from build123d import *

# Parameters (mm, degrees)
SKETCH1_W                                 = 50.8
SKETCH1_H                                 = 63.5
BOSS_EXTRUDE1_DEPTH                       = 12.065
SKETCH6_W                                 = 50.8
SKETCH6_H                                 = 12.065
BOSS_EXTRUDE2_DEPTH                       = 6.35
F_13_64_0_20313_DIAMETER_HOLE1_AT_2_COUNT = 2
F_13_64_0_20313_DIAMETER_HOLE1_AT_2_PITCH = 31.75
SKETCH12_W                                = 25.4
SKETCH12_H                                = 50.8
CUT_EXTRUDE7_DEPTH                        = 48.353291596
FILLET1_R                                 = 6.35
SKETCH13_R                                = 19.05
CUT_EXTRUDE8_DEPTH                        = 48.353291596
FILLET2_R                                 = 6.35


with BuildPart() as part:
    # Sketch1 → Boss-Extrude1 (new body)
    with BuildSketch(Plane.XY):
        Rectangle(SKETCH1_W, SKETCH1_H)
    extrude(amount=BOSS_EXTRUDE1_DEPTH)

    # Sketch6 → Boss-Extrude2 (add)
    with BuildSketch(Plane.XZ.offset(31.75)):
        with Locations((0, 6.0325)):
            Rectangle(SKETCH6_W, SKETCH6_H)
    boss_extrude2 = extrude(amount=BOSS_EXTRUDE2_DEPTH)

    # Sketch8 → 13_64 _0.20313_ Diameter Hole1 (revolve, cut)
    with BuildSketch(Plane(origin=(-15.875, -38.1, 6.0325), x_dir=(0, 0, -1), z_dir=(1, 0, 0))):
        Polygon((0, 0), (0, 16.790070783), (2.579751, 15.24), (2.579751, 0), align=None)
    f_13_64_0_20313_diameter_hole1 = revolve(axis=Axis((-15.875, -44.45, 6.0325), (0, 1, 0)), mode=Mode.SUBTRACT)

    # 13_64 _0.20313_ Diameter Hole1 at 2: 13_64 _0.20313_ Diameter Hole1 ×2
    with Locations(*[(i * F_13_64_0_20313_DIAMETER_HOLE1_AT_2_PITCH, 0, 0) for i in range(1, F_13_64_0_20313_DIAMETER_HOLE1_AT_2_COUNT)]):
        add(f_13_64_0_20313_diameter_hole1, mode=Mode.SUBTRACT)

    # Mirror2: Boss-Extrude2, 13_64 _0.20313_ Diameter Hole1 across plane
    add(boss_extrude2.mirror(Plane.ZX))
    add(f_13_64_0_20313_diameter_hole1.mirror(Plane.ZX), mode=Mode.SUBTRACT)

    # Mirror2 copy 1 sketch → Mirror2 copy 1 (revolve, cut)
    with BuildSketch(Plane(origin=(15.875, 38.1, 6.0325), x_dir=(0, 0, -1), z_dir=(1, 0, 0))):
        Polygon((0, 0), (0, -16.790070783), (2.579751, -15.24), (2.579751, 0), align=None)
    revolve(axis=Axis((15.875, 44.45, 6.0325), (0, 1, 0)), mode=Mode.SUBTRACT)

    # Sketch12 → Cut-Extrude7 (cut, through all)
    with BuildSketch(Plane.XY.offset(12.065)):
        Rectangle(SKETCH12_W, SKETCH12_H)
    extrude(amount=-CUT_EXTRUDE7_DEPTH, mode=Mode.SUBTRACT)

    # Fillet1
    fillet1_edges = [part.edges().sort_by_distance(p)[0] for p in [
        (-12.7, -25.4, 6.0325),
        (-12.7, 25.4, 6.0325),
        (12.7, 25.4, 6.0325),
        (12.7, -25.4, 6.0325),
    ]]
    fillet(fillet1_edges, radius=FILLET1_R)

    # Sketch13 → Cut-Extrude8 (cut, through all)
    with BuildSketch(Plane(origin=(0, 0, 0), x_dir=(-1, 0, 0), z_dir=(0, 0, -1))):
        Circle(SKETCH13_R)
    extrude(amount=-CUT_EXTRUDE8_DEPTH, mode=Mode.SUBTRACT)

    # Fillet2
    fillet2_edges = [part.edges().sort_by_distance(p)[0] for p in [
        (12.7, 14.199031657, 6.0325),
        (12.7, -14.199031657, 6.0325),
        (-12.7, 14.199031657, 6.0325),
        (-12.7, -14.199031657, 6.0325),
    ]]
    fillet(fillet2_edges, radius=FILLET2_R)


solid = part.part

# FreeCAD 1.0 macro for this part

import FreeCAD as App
import Part
import Sketcher

V = App.Vector
Q = App.Units.Quantity


def edges_at(feature, points):
    """Names of the edges that pass closest to the given points."""
    edges = feature.Shape.Edges
    near = lambda p: min(range(len(edges)), key=lambda i: edges[i].distToShape(Part.Vertex(*p))[0])
    return sorted({f"Edge{near(p) + 1}" for p in points})


def add_polygon(sketch, points):
    """Adds a closed chain of lines whose ends are joined by coincident constraints."""
    first, n = sketch.GeometryCount, len(points)
    for a, b in zip(points, points[1:] + points[:1]):
        sketch.addGeometry(Part.LineSegment(App.Vector(*a, 0), App.Vector(*b, 0)), False)
    for i in range(n):
        sketch.addConstraint(Sketcher.Constraint("Coincident", first + i, 2, first + (i + 1) % n, 1))

doc = App.newDocument("Part")
body = doc.addObject("PartDesign::Body", "Body")

# Sketch on XY plane
sketch1 = body.newObject("Sketcher::SketchObject", "Sketch")
sketch1.AttachmentSupport = (doc.getObject("XY_Plane"), [""])
sketch1.MapMode = "FlatFace"
add_polygon(sketch1, [(-25, 32), (-25, -32), (25, -32), (25, 32)])  # lines 0-3
sketch1.addConstraint(Sketcher.Constraint("Vertical", 0))
sketch1.addConstraint(Sketcher.Constraint("Horizontal", 1))
sketch1.addConstraint(Sketcher.Constraint("Vertical", 2))
sketch1.addConstraint(Sketcher.Constraint("Horizontal", 3))
sketch1.addConstraint(Sketcher.Constraint("Symmetric", 0, 2, 2, 2, -1, 1))
sketch1.addConstraint(Sketcher.Constraint("DistanceX", 1, 1, 1, 2, Q("2 in")))
sketch1.addConstraint(Sketcher.Constraint("DistanceY", 0, 2, 0, 1, Q("2.5 in")))
pad1 = body.newObject("PartDesign::Pad", "Pad")
pad1.Profile = sketch1
pad1.Length = Q("0.475 in")

# Sketch on XZ plane
sketch2 = body.newObject("Sketcher::SketchObject", "Sketch001")
sketch2.AttachmentSupport = (doc.getObject("XZ_Plane"), [""])
sketch2.MapMode = "FlatFace"
sketch2.AttachmentOffset = App.Placement(V(0, 0, 1.25 * 25.4), App.Rotation())
add_polygon(sketch2, [(-25, 12), (-25, 0), (25, 0), (25, 12)])  # lines 0-3
sketch2.addConstraint(Sketcher.Constraint("Vertical", 0))
sketch2.addConstraint(Sketcher.Constraint("Horizontal", 1))
sketch2.addConstraint(Sketcher.Constraint("Vertical", 2))
sketch2.addConstraint(Sketcher.Constraint("Horizontal", 3))
sketch2.addConstraint(Sketcher.Constraint("Symmetric", 0, 2, 1, 2, -1, 1))
sketch2.addConstraint(Sketcher.Constraint("DistanceX", 1, 1, 1, 2, Q("2 in")))
sketch2.addConstraint(Sketcher.Constraint("DistanceY", 0, 2, 0, 1, Q("0.475 in")))
pad2 = body.newObject("PartDesign::Pad", "Pad001")
pad2.Profile = sketch2
pad2.Length = Q("0.25 in")

# Sketch on YZ plane
sketch3 = body.newObject("Sketcher::SketchObject", "Sketch002")
sketch3.AttachmentSupport = (doc.getObject("YZ_Plane"), [""])
sketch3.MapMode = "FlatFace"
sketch3.AttachmentOffset = App.Placement(V(0, 0, -0.625 * 25.4), App.Rotation())
add_polygon(sketch3, [(-21.3, 6), (-38.1, 6), (-38.1, 3.5), (-22.9, 3.5)])  # lines 0-3
sketch3.addGeometry(Part.LineSegment(V(-38.1, 6, 0), V(-21.3, 6, 0)), True)  # axis
sketch3.addConstraint(Sketcher.Constraint("Horizontal", 0))
sketch3.addConstraint(Sketcher.Constraint("Vertical", 1))
sketch3.addConstraint(Sketcher.Constraint("Horizontal", 2))
sketch3.addConstraint(Sketcher.Constraint("Horizontal", 4))
sketch3.addConstraint(Sketcher.Constraint("Coincident", 4, 1, 0, 2))
sketch3.addConstraint(Sketcher.Constraint("Equal", 0, 4))
sketch3.addConstraint(Sketcher.Constraint("DistanceX", 2, 1, 2, 2, Q("0.6 in")))
sketch3.addConstraint(Sketcher.Constraint("Angle", 3, Q("59 deg")))
sketch3.addConstraint(Sketcher.Constraint("DistanceX", 0, 2, -1, 1, Q("1.5 in")))
sketch3.addConstraint(Sketcher.Constraint("DistanceY", -1, 1, 0, 2, Q("0.2375 in")))
sketch3.addConstraint(Sketcher.Constraint("DistanceX", 0, 2, 0, 1, 16.790071))
groove = body.newObject("PartDesign::Groove", "Groove")
groove.Profile = sketch3
groove.ReferenceAxis = (sketch3, ["Axis0"])
groove.Angle = 360
doc.recompute()

linearpattern = body.newObject("PartDesign::LinearPattern", "LinearPattern")
linearpattern.Originals = [groove]
linearpattern.Direction = (doc.getObject("X_Axis"), [""])
linearpattern.Mode = "offset"
linearpattern.Offset = Q("1.25 in")
linearpattern.Occurrences = 2
body.Tip = linearpattern
doc.recompute()

mirrored = body.newObject("PartDesign::Mirrored", "Mirrored")
mirrored.Originals = [pad2, groove]
mirrored.MirrorPlane = (doc.getObject("XZ_Plane"), [""])
body.Tip = mirrored

# Sketch on YZ plane
sketch4 = body.newObject("Sketcher::SketchObject", "Sketch003")
sketch4.AttachmentSupport = (doc.getObject("YZ_Plane"), [""])
sketch4.MapMode = "FlatFace"
sketch4.AttachmentOffset = App.Placement(V(0, 0, 0.625 * 25.4), App.Rotation())
add_polygon(sketch4, [(38.1, 6), (21.3, 6), (22.9, 3.5), (38.1, 3.5)])  # lines 0-3
sketch4.addGeometry(Part.LineSegment(V(21.3, 6, 0), V(38.1, 6, 0)), True)  # axis
sketch4.addConstraint(Sketcher.Constraint("Horizontal", 0))
sketch4.addConstraint(Sketcher.Constraint("Horizontal", 2))
sketch4.addConstraint(Sketcher.Constraint("Vertical", 3))
sketch4.addConstraint(Sketcher.Constraint("Horizontal", 4))
sketch4.addConstraint(Sketcher.Constraint("Coincident", 4, 1, 0, 2))
sketch4.addConstraint(Sketcher.Constraint("Vertical", 2, 2, 4, 2))
sketch4.addConstraint(Sketcher.Constraint("DistanceX", 2, 1, 2, 2, Q("0.6 in")))
sketch4.addConstraint(Sketcher.Constraint("Angle", 1, Q("-59 deg")))
sketch4.addConstraint(Sketcher.Constraint("DistanceX", -1, 1, 1, 2, Q("0.9 in")))
sketch4.addConstraint(Sketcher.Constraint("DistanceY", -1, 1, 0, 2, Q("0.2375 in")))
sketch4.addConstraint(Sketcher.Constraint("DistanceX", 0, 2, 0, 1, 16.790071))
groove2 = body.newObject("PartDesign::Groove", "Groove001")
groove2.Profile = sketch4
groove2.ReferenceAxis = (sketch4, ["Axis0"])
groove2.Angle = 360

# Sketch on XY plane
sketch5 = body.newObject("Sketcher::SketchObject", "Sketch004")
sketch5.AttachmentSupport = (doc.getObject("XY_Plane"), [""])
sketch5.MapMode = "FlatFace"
sketch5.AttachmentOffset = App.Placement(V(0, 0, 0.475 * 25.4), App.Rotation())
add_polygon(sketch5, [(-13, 25), (-13, -25), (13, -25), (13, 25)])  # lines 0-3
sketch5.addConstraint(Sketcher.Constraint("Vertical", 0))
sketch5.addConstraint(Sketcher.Constraint("Horizontal", 1))
sketch5.addConstraint(Sketcher.Constraint("Vertical", 2))
sketch5.addConstraint(Sketcher.Constraint("Horizontal", 3))
sketch5.addConstraint(Sketcher.Constraint("Symmetric", 0, 2, 2, 2, -1, 1))
sketch5.addConstraint(Sketcher.Constraint("DistanceX", 1, 1, 1, 2, Q("1 in")))
sketch5.addConstraint(Sketcher.Constraint("DistanceY", 0, 2, 0, 1, Q("2 in")))
pocket1 = body.newObject("PartDesign::Pocket", "Pocket")
pocket1.Profile = sketch5
pocket1.Type = "ThroughAll"
doc.recompute()

fillet = body.newObject("PartDesign::Fillet", "Fillet")
fillet.Base = (pocket1, edges_at(pocket1, [
    (-12.7, -25.4, 6.032),
    (-12.7, 25.4, 6.032),
    (12.7, 25.4, 6.032),
    (12.7, -25.4, 6.032),
]))
fillet.Radius = Q("0.25 in")

# Sketch on XY plane
sketch6 = body.newObject("Sketcher::SketchObject", "Sketch005")
sketch6.AttachmentSupport = (doc.getObject("XY_Plane"), [""])
sketch6.MapMode = "FlatFace"
sketch6.addGeometry(Part.Circle(V(0, 0, 0), V(0, 0, 1), 19), False)
sketch6.addConstraint(Sketcher.Constraint("Coincident", 0, 3, -1, 1))
sketch6.addConstraint(Sketcher.Constraint("Diameter", 0, Q("1.5 in")))
pocket2 = body.newObject("PartDesign::Pocket", "Pocket001")
pocket2.Profile = sketch6
pocket2.Type = "ThroughAll"
pocket2.Reversed = True
doc.recompute()

fillet2 = body.newObject("PartDesign::Fillet", "Fillet001")
fillet2.Base = (pocket2, edges_at(pocket2, [
    (12.7, 14.199, 6.032),
    (12.7, -14.199, 6.032),
    (-12.7, 14.199, 6.032),
    (-12.7, -14.199, 6.032),
]))
fillet2.Radius = Q("0.25 in")

doc.recompute()
